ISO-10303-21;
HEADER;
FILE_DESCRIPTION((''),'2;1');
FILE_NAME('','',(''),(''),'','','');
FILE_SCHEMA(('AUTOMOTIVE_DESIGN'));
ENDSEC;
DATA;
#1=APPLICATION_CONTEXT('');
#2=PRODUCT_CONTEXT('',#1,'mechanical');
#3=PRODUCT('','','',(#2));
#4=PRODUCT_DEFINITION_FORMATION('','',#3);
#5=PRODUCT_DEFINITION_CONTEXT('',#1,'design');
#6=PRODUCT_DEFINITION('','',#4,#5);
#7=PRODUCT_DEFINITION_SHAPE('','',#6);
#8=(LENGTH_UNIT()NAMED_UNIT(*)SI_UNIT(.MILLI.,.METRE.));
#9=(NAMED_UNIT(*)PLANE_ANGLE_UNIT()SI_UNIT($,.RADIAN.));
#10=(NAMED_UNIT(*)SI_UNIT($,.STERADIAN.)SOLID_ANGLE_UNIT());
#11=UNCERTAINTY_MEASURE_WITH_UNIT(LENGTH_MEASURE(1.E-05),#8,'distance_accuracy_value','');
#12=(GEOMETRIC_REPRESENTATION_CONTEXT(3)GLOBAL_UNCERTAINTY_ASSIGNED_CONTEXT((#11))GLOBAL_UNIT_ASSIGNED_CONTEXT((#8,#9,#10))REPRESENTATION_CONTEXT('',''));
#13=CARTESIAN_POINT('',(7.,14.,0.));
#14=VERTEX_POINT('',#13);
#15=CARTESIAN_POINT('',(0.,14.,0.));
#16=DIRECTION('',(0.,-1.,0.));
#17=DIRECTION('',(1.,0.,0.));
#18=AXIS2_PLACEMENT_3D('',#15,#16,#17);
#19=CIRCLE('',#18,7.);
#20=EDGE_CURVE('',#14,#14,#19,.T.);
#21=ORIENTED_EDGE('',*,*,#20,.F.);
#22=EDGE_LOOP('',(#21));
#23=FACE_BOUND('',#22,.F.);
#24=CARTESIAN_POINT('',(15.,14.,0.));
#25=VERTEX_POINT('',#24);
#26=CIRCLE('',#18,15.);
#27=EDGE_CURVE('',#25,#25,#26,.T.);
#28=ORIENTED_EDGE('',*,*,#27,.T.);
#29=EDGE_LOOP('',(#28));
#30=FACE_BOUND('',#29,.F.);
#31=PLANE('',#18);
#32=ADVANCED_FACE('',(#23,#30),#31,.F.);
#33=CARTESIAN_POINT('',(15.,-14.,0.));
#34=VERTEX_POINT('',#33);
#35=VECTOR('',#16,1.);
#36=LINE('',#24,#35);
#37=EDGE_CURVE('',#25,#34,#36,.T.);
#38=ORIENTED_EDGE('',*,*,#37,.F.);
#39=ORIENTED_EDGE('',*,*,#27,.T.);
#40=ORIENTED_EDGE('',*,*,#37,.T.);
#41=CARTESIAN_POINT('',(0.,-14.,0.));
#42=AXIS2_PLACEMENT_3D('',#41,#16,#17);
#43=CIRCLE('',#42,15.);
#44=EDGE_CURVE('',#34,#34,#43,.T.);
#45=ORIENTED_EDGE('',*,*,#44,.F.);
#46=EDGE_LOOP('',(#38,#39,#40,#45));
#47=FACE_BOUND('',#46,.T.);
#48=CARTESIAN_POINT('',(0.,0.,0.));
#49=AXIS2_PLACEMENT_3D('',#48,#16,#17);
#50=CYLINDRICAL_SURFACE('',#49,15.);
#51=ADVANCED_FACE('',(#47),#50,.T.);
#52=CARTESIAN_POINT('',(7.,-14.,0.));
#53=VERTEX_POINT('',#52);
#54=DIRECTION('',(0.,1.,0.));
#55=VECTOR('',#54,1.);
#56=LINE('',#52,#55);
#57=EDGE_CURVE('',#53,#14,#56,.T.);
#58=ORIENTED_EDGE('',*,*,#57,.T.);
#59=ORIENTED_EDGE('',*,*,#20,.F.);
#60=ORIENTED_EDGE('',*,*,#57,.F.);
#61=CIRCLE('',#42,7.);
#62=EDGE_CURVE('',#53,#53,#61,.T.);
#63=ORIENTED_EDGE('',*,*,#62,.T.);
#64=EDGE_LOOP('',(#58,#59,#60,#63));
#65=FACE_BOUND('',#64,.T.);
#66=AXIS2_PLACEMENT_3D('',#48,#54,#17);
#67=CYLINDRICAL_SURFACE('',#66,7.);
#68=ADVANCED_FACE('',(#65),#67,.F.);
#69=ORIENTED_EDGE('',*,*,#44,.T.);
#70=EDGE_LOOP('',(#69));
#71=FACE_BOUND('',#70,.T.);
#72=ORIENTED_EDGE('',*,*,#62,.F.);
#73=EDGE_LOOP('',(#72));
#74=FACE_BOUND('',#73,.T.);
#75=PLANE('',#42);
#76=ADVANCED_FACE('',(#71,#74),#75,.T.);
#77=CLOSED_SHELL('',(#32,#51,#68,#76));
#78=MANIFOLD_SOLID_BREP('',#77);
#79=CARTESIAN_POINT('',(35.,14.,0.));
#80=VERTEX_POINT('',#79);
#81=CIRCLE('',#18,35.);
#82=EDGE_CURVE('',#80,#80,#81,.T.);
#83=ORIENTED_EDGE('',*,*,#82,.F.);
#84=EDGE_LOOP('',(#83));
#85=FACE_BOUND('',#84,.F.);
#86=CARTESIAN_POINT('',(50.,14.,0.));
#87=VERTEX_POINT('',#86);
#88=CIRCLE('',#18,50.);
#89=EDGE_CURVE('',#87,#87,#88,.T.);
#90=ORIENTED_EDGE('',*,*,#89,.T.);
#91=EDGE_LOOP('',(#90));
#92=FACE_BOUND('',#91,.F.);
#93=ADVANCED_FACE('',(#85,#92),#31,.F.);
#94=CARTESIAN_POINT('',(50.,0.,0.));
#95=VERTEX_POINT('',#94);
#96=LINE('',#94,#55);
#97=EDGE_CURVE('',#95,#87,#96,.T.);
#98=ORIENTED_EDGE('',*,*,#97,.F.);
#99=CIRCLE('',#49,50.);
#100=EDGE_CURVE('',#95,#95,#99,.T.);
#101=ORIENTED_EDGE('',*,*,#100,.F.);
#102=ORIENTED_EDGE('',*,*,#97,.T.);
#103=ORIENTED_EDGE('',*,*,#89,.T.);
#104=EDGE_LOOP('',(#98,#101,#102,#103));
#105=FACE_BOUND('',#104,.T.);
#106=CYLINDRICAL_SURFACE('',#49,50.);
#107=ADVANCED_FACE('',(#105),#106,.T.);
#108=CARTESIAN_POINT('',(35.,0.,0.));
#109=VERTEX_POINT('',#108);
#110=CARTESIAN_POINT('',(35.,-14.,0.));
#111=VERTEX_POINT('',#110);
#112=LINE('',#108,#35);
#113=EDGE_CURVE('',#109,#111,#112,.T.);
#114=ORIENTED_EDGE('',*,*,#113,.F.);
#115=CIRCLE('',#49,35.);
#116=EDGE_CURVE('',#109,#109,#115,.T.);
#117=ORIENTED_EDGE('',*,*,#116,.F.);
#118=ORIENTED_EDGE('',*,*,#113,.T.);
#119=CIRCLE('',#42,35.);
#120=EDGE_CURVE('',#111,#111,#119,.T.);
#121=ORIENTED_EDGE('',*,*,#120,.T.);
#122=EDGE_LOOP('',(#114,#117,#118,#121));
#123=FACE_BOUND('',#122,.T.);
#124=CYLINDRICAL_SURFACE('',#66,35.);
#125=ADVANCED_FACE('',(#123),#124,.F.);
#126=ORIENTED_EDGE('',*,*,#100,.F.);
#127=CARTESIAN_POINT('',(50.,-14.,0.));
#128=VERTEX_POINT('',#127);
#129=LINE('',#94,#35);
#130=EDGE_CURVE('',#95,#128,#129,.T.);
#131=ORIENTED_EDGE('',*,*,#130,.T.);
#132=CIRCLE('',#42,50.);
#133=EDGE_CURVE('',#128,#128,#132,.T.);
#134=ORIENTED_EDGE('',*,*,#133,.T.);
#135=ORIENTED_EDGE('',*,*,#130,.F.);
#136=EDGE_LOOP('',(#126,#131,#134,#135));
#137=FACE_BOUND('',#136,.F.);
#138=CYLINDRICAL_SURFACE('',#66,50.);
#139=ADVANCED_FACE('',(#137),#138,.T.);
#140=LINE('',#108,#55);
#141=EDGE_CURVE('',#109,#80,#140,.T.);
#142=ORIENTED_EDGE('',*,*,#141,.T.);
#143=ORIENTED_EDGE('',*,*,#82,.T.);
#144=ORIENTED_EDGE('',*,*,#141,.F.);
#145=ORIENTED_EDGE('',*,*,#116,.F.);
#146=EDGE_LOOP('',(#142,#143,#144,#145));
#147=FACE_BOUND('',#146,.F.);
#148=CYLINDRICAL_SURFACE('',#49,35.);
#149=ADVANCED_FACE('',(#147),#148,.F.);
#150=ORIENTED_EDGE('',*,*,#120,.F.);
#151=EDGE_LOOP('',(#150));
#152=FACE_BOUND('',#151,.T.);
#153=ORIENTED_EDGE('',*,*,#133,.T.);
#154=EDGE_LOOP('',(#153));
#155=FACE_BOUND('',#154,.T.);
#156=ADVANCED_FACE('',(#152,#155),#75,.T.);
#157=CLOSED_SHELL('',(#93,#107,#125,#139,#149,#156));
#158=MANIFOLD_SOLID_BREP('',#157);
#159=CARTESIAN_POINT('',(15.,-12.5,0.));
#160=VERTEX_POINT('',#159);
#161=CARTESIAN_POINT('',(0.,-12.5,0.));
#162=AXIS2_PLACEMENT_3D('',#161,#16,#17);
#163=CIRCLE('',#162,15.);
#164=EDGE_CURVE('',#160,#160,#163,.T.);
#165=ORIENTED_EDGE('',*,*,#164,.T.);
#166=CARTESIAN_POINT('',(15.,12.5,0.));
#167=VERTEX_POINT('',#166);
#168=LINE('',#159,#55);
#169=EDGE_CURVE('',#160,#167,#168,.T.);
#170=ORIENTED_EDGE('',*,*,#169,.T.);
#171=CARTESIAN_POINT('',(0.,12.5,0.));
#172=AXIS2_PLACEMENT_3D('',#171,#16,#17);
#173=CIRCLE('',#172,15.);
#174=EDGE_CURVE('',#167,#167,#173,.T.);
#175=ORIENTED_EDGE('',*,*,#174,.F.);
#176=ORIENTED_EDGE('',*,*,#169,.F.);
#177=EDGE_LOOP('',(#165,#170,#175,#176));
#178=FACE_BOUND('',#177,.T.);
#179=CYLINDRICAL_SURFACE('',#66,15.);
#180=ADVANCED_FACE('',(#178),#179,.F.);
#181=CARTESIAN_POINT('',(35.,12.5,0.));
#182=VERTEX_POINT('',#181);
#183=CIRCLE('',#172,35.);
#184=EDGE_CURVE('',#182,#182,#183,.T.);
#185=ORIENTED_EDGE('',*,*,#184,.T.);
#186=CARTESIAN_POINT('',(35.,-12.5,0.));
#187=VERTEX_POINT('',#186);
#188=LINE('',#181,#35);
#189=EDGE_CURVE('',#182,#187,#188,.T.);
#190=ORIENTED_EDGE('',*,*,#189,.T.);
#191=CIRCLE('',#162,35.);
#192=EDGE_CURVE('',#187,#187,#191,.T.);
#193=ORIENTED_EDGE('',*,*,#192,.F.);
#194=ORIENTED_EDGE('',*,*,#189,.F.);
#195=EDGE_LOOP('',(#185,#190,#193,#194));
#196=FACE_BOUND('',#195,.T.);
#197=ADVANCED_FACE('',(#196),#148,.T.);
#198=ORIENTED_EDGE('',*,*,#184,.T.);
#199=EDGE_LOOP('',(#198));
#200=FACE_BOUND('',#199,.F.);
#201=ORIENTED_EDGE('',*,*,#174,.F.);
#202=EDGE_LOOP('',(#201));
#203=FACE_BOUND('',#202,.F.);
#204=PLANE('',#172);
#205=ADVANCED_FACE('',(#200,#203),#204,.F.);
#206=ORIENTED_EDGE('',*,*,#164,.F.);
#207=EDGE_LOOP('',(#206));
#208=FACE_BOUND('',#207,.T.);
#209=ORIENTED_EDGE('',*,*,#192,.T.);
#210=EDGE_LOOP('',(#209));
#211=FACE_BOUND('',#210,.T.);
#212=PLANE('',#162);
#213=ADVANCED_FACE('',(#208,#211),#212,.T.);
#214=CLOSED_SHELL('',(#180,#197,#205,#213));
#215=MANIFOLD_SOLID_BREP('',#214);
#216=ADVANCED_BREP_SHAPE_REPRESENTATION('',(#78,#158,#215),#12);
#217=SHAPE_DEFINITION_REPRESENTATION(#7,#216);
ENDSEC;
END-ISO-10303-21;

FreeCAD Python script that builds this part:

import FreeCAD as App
import Part
import Sketcher
Q = App.Units.Quantity

doc = App.newDocument("Part")
body = doc.addObject("PartDesign::Body", "Body")
body.AllowCompound = True

# Sketch on XZ plane
sketch1 = doc.addObject("Sketcher::SketchObject", "Sketch")
body.addObject(sketch1)
sketch1.AttachmentSupport = (doc.XZ_Plane, [""])
sketch1.MapMode = "FlatFace"
sketch1.addGeometry(Part.Circle(App.Vector(0, 0, 0), App.Vector(0, 0, 1), 50), False)
sketch1.addGeometry(Part.Circle(App.Vector(0, 0, 0), App.Vector(0, 0, 1), 35), False)
sketch1.addGeometry(Part.Circle(App.Vector(0, 0, 0), App.Vector(0, 0, 1), 15), False)
sketch1.addGeometry(Part.Circle(App.Vector(0, 0, 0), App.Vector(0, 0, 1), 7), False)
sketch1.addConstraint(Sketcher.Constraint("Coincident", 0, 3, -1, 1))
sketch1.addConstraint(Sketcher.Constraint("Coincident", 1, 3, -1, 1))
sketch1.addConstraint(Sketcher.Constraint("Coincident", 2, 3, -1, 1))
sketch1.addConstraint(Sketcher.Constraint("Coincident", 3, 3, -1, 1))
sketch1.addConstraint(Sketcher.Constraint("Diameter", 0, Q("100 mm")))
sketch1.addConstraint(Sketcher.Constraint("Diameter", 1, Q("70 mm")))
sketch1.addConstraint(Sketcher.Constraint("Diameter", 2, Q("30 mm")))
sketch1.addConstraint(Sketcher.Constraint("Diameter", 3, Q("14 mm")))
pad1 = doc.addObject("PartDesign::Pad", "Pad")
body.addObject(pad1)
pad1.Profile = sketch1
pad1.Length = 28
pad1.Midplane = True
body2 = doc.addObject("PartDesign::Body", "Body001")

# Sketch on XZ plane
sketch2 = doc.addObject("Sketcher::SketchObject", "Sketch001")
body2.addObject(sketch2)
sketch2.AttachmentSupport = (doc.getObject("XZ_Plane001"), [""])
sketch2.MapMode = "FlatFace"
sketch2.addGeometry(Part.Circle(App.Vector(0, 0, 0), App.Vector(0, 0, 1), 35), False)
sketch2.addGeometry(Part.Circle(App.Vector(0, 0, 0), App.Vector(0, 0, 1), 15), False)
sketch2.addConstraint(Sketcher.Constraint("Coincident", 0, 3, -1, 1))
sketch2.addConstraint(Sketcher.Constraint("Coincident", 1, 3, -1, 1))
sketch2.addConstraint(Sketcher.Constraint("Diameter", 0, Q("70 mm")))
sketch2.addConstraint(Sketcher.Constraint("Diameter", 1, Q("30 mm")))
pad2 = doc.addObject("PartDesign::Pad", "Pad001")
body2.addObject(pad2)
pad2.Profile = sketch2
pad2.Length = 25
pad2.Midplane = True

doc.recompute()
